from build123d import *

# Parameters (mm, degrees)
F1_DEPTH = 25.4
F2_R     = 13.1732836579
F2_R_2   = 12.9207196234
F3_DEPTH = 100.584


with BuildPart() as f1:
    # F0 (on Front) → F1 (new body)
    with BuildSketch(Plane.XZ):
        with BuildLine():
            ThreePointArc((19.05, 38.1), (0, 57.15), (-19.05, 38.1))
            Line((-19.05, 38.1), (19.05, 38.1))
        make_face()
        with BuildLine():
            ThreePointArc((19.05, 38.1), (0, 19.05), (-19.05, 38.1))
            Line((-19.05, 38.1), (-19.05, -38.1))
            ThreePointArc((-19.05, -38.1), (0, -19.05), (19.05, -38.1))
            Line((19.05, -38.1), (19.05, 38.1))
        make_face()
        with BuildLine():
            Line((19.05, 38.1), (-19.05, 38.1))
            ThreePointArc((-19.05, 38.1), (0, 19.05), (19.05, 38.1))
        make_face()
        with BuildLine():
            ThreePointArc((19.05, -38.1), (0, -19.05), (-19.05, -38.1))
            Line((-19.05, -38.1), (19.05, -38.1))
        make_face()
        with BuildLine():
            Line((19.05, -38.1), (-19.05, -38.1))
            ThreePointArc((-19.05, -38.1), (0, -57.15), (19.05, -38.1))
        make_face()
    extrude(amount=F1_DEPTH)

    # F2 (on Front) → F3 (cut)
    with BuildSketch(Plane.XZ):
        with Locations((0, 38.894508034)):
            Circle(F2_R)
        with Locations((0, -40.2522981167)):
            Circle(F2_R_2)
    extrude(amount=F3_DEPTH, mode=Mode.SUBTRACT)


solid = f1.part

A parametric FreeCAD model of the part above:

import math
import FreeCAD as App
import Part
import Sketcher
Q = App.Units.Quantity

doc = App.newDocument("Part")
body = doc.addObject("PartDesign::Body", "Body")

# Sketch on XZ plane
sketch1 = body.newObject("Sketcher::SketchObject", "Sketch")
sketch1.AttachmentSupport = (doc.getObject("XZ_Plane"), [""])
sketch1.MapMode = "FlatFace"
sketch1.addGeometry([
    Part.ArcOfCircle(Part.Circle(App.Vector(0, 38, 0), App.Vector(0, 0, 1), 19), math.radians(0), math.radians(180)),
    Part.LineSegment(App.Vector(-19, 38, 0), App.Vector(-19, -38, 0)),
    Part.ArcOfCircle(Part.Circle(App.Vector(0, -38, 0), App.Vector(0, 0, 1), 19), math.radians(180), math.radians(360)),
    Part.LineSegment(App.Vector(19, -38, 0), App.Vector(19, 38, 0)),
], False)
sketch1.addConstraint([
    Sketcher.Constraint("Tangent", 0, 2, 1, 1),
    Sketcher.Constraint("Tangent", 1, 2, 2, 1),
    Sketcher.Constraint("Tangent", 2, 2, 3, 1),
    Sketcher.Constraint("Tangent", 3, 2, 0, 1),
    Sketcher.Constraint("Vertical", 1),
    Sketcher.Constraint("Vertical", 3),
    Sketcher.Constraint("Symmetric", 0, 3, 2, 3, -1, 1),
    Sketcher.Constraint("DistanceY", 1, 2, 1, 1, Q("3 in")),
    Sketcher.Constraint("Radius", 0, Q("0.75 in")),
])
pad1 = body.newObject("PartDesign::Pad", "Pad")
pad1.Profile = sketch1
pad1.Length = Q("1 in")

# Sketch on XZ plane
sketch2 = body.newObject("Sketcher::SketchObject", "Sketch001")
sketch2.AttachmentSupport = (doc.getObject("XZ_Plane"), [""])
sketch2.MapMode = "FlatFace"
sketch2.addGeometry([
    Part.Circle(App.Vector(0, 39, 0), App.Vector(0, 0, 1), 13),
    Part.Circle(App.Vector(0, -40, 0), App.Vector(0, 0, 1), 13),
], False)
sketch2.addConstraint([
    Sketcher.Constraint("PointOnObject", 0, 3, -2),
    Sketcher.Constraint("PointOnObject", 1, 3, -2),
    Sketcher.Constraint("Diameter", 1, 25.841439),
    Sketcher.Constraint("Diameter", 0, 26.346567),
    Sketcher.Constraint("DistanceY", 1, 3, -1, 1, 40.252298),
    Sketcher.Constraint("DistanceY", -1, 1, 0, 3, 38.894508),
])
pocket1 = body.newObject("PartDesign::Pocket", "Pocket")
pocket1.Profile = sketch2
pocket1.Length = Q("3.96 in")
pocket1.Reversed = True

doc.recompute()
